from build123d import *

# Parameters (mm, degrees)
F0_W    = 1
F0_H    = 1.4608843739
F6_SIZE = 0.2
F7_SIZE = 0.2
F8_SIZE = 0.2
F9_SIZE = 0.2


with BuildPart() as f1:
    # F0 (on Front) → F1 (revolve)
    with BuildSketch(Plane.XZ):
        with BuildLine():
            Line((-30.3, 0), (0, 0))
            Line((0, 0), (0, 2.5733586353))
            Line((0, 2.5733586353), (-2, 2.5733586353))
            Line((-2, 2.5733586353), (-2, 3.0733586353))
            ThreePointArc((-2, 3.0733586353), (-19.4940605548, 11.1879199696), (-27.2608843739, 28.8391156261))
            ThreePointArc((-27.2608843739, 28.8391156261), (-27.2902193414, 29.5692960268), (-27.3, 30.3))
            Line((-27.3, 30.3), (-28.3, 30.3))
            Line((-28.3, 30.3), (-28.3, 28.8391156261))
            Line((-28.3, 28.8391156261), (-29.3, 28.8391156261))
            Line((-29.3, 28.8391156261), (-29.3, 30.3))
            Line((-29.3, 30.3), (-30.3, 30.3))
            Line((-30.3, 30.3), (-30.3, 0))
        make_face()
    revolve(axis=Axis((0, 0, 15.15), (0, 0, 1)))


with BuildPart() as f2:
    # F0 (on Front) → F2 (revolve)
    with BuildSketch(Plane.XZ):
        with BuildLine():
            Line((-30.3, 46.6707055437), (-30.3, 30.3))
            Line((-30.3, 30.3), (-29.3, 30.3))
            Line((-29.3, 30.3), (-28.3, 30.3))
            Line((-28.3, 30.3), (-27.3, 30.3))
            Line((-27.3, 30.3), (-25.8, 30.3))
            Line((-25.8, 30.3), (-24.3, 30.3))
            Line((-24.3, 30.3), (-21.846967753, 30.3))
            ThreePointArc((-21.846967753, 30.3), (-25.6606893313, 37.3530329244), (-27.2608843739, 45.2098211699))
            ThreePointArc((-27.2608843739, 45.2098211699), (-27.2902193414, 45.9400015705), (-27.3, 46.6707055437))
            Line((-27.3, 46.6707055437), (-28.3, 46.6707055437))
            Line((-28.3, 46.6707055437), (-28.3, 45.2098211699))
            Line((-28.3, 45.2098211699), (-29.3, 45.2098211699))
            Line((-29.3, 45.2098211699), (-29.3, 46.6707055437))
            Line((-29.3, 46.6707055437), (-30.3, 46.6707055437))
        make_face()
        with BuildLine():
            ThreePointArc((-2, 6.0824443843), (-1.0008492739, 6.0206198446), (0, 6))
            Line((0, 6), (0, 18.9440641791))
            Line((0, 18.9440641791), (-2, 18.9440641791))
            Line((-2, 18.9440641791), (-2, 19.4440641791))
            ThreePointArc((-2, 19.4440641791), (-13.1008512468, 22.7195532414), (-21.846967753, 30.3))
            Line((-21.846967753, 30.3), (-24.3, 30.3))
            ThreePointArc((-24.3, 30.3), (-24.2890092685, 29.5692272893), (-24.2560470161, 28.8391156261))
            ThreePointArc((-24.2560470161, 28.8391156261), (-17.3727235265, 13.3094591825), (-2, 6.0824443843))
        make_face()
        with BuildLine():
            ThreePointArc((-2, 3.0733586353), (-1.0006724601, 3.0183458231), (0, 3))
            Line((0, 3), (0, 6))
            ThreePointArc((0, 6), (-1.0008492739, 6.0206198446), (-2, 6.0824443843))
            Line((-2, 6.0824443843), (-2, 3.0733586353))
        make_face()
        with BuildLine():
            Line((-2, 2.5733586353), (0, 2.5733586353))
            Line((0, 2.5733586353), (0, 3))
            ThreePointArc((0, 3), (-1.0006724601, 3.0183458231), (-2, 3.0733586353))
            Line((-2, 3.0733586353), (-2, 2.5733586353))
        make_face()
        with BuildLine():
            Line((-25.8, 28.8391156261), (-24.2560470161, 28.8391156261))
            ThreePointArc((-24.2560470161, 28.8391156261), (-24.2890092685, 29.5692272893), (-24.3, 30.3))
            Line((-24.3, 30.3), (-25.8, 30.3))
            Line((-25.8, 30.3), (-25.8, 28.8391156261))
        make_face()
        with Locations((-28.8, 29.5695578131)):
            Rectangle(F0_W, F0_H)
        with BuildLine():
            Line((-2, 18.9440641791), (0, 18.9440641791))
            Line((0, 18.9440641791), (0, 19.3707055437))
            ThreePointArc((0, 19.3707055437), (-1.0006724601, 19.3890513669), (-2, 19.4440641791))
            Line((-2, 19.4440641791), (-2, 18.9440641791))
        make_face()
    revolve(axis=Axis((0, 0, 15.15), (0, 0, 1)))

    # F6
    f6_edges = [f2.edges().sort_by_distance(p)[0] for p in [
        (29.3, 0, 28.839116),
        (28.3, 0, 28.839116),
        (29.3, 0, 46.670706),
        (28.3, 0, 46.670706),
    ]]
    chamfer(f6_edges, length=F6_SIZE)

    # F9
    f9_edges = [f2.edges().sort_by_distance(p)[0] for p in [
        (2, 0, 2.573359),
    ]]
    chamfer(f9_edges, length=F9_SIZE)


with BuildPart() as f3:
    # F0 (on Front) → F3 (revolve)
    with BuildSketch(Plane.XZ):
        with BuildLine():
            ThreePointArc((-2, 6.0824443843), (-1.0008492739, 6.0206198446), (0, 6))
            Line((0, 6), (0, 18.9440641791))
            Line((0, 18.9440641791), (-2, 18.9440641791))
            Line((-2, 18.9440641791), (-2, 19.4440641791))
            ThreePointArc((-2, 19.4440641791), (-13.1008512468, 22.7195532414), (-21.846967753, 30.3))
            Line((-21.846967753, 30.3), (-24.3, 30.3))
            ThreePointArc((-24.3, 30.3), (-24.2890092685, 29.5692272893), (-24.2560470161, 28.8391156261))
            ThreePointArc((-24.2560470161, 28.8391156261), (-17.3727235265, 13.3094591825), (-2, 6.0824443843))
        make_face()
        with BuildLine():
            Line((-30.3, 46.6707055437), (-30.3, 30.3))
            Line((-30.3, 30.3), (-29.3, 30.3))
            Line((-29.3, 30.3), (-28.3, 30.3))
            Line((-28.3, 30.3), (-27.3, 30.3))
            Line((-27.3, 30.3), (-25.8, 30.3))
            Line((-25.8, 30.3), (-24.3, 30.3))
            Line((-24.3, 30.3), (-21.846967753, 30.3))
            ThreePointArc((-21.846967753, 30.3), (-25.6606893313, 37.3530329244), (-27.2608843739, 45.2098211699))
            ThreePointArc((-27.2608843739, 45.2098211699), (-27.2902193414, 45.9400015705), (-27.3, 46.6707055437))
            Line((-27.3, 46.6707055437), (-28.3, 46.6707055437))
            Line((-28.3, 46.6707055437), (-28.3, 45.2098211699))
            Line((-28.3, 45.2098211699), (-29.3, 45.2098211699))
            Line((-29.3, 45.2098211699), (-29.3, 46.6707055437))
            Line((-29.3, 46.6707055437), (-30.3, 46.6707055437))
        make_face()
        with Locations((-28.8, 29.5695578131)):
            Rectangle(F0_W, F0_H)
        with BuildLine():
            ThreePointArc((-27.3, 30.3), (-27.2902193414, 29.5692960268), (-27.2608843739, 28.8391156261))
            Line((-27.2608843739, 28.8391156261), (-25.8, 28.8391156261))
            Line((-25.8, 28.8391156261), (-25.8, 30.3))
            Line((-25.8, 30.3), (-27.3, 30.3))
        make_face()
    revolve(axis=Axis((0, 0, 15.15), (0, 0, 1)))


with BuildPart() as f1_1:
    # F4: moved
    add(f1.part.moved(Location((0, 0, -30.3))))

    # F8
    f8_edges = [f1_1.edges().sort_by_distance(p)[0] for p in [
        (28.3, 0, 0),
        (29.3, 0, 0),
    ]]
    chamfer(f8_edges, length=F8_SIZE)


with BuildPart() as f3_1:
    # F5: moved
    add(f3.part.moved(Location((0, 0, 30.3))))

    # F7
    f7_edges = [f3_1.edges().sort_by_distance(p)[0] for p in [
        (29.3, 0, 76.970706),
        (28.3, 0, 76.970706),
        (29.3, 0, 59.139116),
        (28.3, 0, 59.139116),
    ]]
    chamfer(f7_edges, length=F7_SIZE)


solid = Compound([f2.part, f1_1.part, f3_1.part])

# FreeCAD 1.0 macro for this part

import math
import FreeCAD as App
import Part
import Sketcher

V = App.Vector
Q = App.Units.Quantity


def edges_at(feature, points):
    """Names of the edges that pass closest to the given points."""
    edges = feature.Shape.Edges
    near = lambda p: min(range(len(edges)), key=lambda i: edges[i].distToShape(Part.Vertex(*p))[0])
    return sorted({f"Edge{near(p) + 1}" for p in points})

doc = App.newDocument("Part")
body = doc.addObject("PartDesign::Body", "Body")

sketch1 = body.newObject("Sketcher::SketchObject", "Sketch")
sketch1.AttachmentSupport = (doc.getObject("XZ_Plane"), [""])
sketch1.MapMode = "FlatFace"
sketch1.addGeometry([
    Part.LineSegment(V(-30.3, 0, 0), V(0, 0, 0)),
    Part.LineSegment(V(0, 0, 0), V(0, 2.6, 0)),
    Part.LineSegment(V(0, 2.6, 0), V(-2, 2.6, 0)),
    Part.LineSegment(V(-2, 2.6, 0), V(-2, 3.1, 0)),
    Part.ArcOfCircle(Part.Circle(V(0, 30.3, 0), V(0, 0, 1), 27.3), math.radians(-177), math.radians(-94)),
    Part.ArcOfCircle(Part.Circle(V(0, 30.3, 0), V(0, 0, 1), 27.3), math.radians(-180), math.radians(-176.93)),
    Part.LineSegment(V(-27.3, 30.3, 0), V(-28.3, 30.3, 0)),
    Part.LineSegment(V(-28.3, 30.3, 0), V(-28.3, 28.8, 0)),
    Part.LineSegment(V(-28.3, 28.8, 0), V(-29.3, 28.8, 0)),
    Part.LineSegment(V(-29.3, 28.8, 0), V(-29.3, 30.3, 0)),
    Part.LineSegment(V(-29.3, 30.3, 0), V(-30.3, 30.3, 0)),
    Part.LineSegment(V(-30.3, 30.3, 0), V(-30.3, 0, 0)),
], False)
sketch1.addConstraint([
    Sketcher.Constraint("Coincident", 0, 2, 1, 1),
    Sketcher.Constraint("Coincident", 1, 2, 2, 1),
    Sketcher.Constraint("Coincident", 2, 2, 3, 1),
    Sketcher.Constraint("Coincident", 3, 2, 4, 2),
    Sketcher.Constraint("Tangent", 4, 1, 5, 2),
    Sketcher.Constraint("Coincident", 5, 1, 6, 1),
    Sketcher.Constraint("Coincident", 6, 2, 7, 1),
    Sketcher.Constraint("Coincident", 7, 2, 8, 1),
    Sketcher.Constraint("Coincident", 8, 2, 9, 1),
    Sketcher.Constraint("Coincident", 9, 2, 10, 1),
    Sketcher.Constraint("Coincident", 10, 2, 11, 1),
    Sketcher.Constraint("Coincident", 11, 2, 0, 1),
    Sketcher.Constraint("Horizontal", 0),
    Sketcher.Constraint("Vertical", 1),
    Sketcher.Constraint("Horizontal", 2),
    Sketcher.Constraint("Vertical", 3),
    Sketcher.Constraint("Horizontal", 6),
    Sketcher.Constraint("Vertical", 7),
    Sketcher.Constraint("Horizontal", 8),
    Sketcher.Constraint("Vertical", 9),
    Sketcher.Constraint("Horizontal", 10),
    Sketcher.Constraint("Vertical", 11),
    Sketcher.Constraint("Coincident", 0, 2, -1, 1),
    Sketcher.Constraint("Equal", 4, 5),
    Sketcher.Constraint("PointOnObject", 4, 3, -2),
    Sketcher.Constraint("Horizontal", 4, 3, 5, 1),
    Sketcher.Constraint("Horizontal", 4, 1, 7, 2),
    Sketcher.Constraint("Horizontal", 6, 2, 9, 2),
    Sketcher.Constraint("Equal", 6, 8),
    Sketcher.Constraint("Equal", 8, 10),
    Sketcher.Constraint("Equal", 0, 11),
    Sketcher.Constraint("Radius", 4, Q("27.3 mm")),
    Sketcher.Constraint("DistanceX", 2, 2, 2, 1, Q("2 mm")),
    Sketcher.Constraint("DistanceX", 6, 2, 6, 1, Q("1 mm")),
    Sketcher.Constraint("DistanceY", 3, 1, 3, 2, Q("0.5 mm")),
    Sketcher.Constraint("DistanceY", 7, 2, 7, 1, Q("1.460884 mm")),
])
revolution = body.newObject("PartDesign::Revolution", "Revolution")
revolution.Profile = sketch1
revolution.ReferenceAxis = (sketch1, ["V_Axis"])
revolution.Angle = 360
body2 = doc.addObject("PartDesign::Body", "Body001")

sketch2 = body2.newObject("Sketcher::SketchObject", "Sketch001")
sketch2.AttachmentSupport = (doc.getObject("XZ_Plane001"), [""])
sketch2.MapMode = "FlatFace"
sketch2.addGeometry([
    Part.LineSegment(V(-30.3, 46.7, 0), V(-30.3, 30.3, 0)),
    Part.LineSegment(V(-30.3, 30.3, 0), V(-29.3, 30.3, 0)),
    Part.LineSegment(V(-29.3, 30.3, 0), V(-29.3, 28.8, 0)),
    Part.LineSegment(V(-29.3, 28.8, 0), V(-28.3, 28.8, 0)),
    Part.LineSegment(V(-28.3, 28.8, 0), V(-28.3, 30.3, 0)),
    Part.LineSegment(V(-28.3, 30.3, 0), V(-25.8, 30.3, 0)),
    Part.LineSegment(V(-25.8, 30.3, 0), V(-25.8, 28.8, 0)),
    Part.LineSegment(V(-25.8, 28.8, 0), V(-24.3, 28.8, 0)),
    Part.ArcOfCircle(Part.Circle(V(0, 30.3, 0), V(0, 0, 1), 24.3), math.radians(-177), math.radians(-95)),
    Part.LineSegment(V(-2, 6.1, 0), V(-2, 2.6, 0)),
    Part.LineSegment(V(-2, 2.6, 0), V(0, 2.6, 0)),
    Part.LineSegment(V(0, 2.6, 0), V(0, 19.4, 0)),
    Part.ArcOfCircle(Part.Circle(V(0, 46.7, 0), V(0, 0, 1), 27.3), math.radians(-94.2), math.radians(-90)),
    Part.ArcOfCircle(Part.Circle(V(0, 46.7, 0), V(0, 0, 1), 27.3), math.radians(-143), math.radians(-94)),
    Part.ArcOfCircle(Part.Circle(V(0, 46.7, 0), V(0, 0, 1), 27.3), math.radians(-177), math.radians(-143)),
    Part.ArcOfCircle(Part.Circle(V(0, 46.7, 0), V(0, 0, 1), 27.3), math.radians(-180), math.radians(-176.93)),
    Part.LineSegment(V(-27.3, 46.7, 0), V(-28.3, 46.7, 0)),
    Part.LineSegment(V(-28.3, 46.7, 0), V(-28.3, 45.2, 0)),
    Part.LineSegment(V(-28.3, 45.2, 0), V(-29.3, 45.2, 0)),
    Part.LineSegment(V(-29.3, 45.2, 0), V(-29.3, 46.7, 0)),
    Part.LineSegment(V(-29.3, 46.7, 0), V(-30.3, 46.7, 0)),
], False)
sketch2.addConstraint([
    Sketcher.Constraint("Coincident", 0, 2, 1, 1),
    Sketcher.Constraint("Coincident", 1, 2, 2, 1),
    Sketcher.Constraint("Coincident", 2, 2, 3, 1),
    Sketcher.Constraint("Coincident", 3, 2, 4, 1),
    Sketcher.Constraint("Coincident", 4, 2, 5, 1),
    Sketcher.Constraint("Coincident", 5, 2, 6, 1),
    Sketcher.Constraint("Coincident", 6, 2, 7, 1),
    Sketcher.Constraint("Coincident", 7, 2, 8, 1),
    Sketcher.Constraint("Coincident", 8, 2, 9, 1),
    Sketcher.Constraint("Coincident", 9, 2, 10, 1),
    Sketcher.Constraint("Coincident", 10, 2, 11, 1),
    Sketcher.Constraint("Coincident", 11, 2, 12, 2),
    Sketcher.Constraint("Tangent", 12, 1, 13, 2),
    Sketcher.Constraint("Tangent", 13, 1, 14, 2),
    Sketcher.Constraint("Tangent", 14, 1, 15, 2),
    Sketcher.Constraint("Coincident", 15, 1, 16, 1),
    Sketcher.Constraint("Coincident", 16, 2, 17, 1),
    Sketcher.Constraint("Coincident", 17, 2, 18, 1),
    Sketcher.Constraint("Coincident", 18, 2, 19, 1),
    Sketcher.Constraint("Coincident", 19, 2, 20, 1),
    Sketcher.Constraint("Coincident", 20, 2, 0, 1),
    Sketcher.Constraint("Vertical", 0),
    Sketcher.Constraint("Horizontal", 1),
    Sketcher.Constraint("Vertical", 2),
    Sketcher.Constraint("Horizontal", 3),
    Sketcher.Constraint("Vertical", 4),
    Sketcher.Constraint("Horizontal", 5),
    Sketcher.Constraint("Vertical", 6),
    Sketcher.Constraint("Horizontal", 7),
    Sketcher.Constraint("Vertical", 9),
    Sketcher.Constraint("Horizontal", 10),
    Sketcher.Constraint("Vertical", 11),
    Sketcher.Constraint("Horizontal", 16),
    Sketcher.Constraint("Vertical", 17),
    Sketcher.Constraint("Horizontal", 18),
    Sketcher.Constraint("Vertical", 19),
    Sketcher.Constraint("Horizontal", 20),
    Sketcher.Constraint("Coincident", 14, 3, 12, 3),
    Sketcher.Constraint("Equal", 14, 15),
    Sketcher.Constraint("PointOnObject", 8, 3, -2),
    Sketcher.Constraint("PointOnObject", 12, 3, -2),
    Sketcher.Constraint("PointOnObject", 10, 2, -2),
    Sketcher.Constraint("Horizontal", 8, 3, 0, 2),
    Sketcher.Constraint("Horizontal", 1, 2, 4, 2),
    Sketcher.Constraint("Horizontal", 3, 2, 6, 2),
    Sketcher.Constraint("Horizontal", 5, 2, 13, 1),
    Sketcher.Constraint("Horizontal", 14, 3, 15, 1),
    Sketcher.Constraint("Horizontal", 14, 1, 17, 2),
    Sketcher.Constraint("Horizontal", 16, 2, 19, 2),
    Sketcher.Constraint("Vertical", 9, 2, 12, 1),
    Sketcher.Constraint("Vertical", 4, 2, 16, 2),
    Sketcher.Constraint("Vertical", 2, 2, 18, 2),
    Sketcher.Constraint("Equal", 1, 3),
    Sketcher.Constraint("Equal", 3, 16),
    Sketcher.Constraint("Equal", 6, 17),
    Sketcher.Constraint("Radius", 8, Q("24.3 mm")),
    Sketcher.Constraint("Radius", 12, Q("27.3 mm")),
    Sketcher.Constraint("DistanceX", 1, 1, 1, 2, Q("1 mm")),
    Sketcher.Constraint("DistanceX", 10, 1, 10, 2, Q("2 mm")),
    Sketcher.Constraint("DistanceX", 5, 1, 5, 2, Q("2.5 mm")),
    Sketcher.Constraint("DistanceY", -1, 1, 8, 3, Q("30.3 mm")),
    Sketcher.Constraint("DistanceX", 7, 1, 7, 2, Q("1.543953 mm")),
    Sketcher.Constraint("DistanceY", 0, 2, 0, 1, Q("16.370706 mm")),
    Sketcher.Constraint("DistanceY", 9, 2, 9, 1, Q("3.509086 mm")),
])
revolution2 = body2.newObject("PartDesign::Revolution", "Revolution001")
revolution2.Profile = sketch2
revolution2.ReferenceAxis = (sketch2, ["V_Axis"])
revolution2.Angle = 360
doc.recompute()

chamfer = body2.newObject("PartDesign::Chamfer", "Chamfer")
chamfer.Base = (revolution2, edges_at(revolution2, [
    (29.3, 0, 28.839),
    (28.3, 0, 28.839),
    (29.3, 0, 46.671),
    (28.3, 0, 46.671),
]))
chamfer.Size = 0.2
doc.recompute()

chamfer2 = body2.newObject("PartDesign::Chamfer", "Chamfer001")
chamfer2.Base = (chamfer, edges_at(chamfer, [(2, 0, 2.573)]))
chamfer2.Size = 0.2
body3 = doc.addObject("PartDesign::Body", "Body002")

sketch3 = body3.newObject("Sketcher::SketchObject", "Sketch002")
sketch3.AttachmentSupport = (doc.getObject("XZ_Plane002"), [""])
sketch3.MapMode = "FlatFace"
sketch3.addGeometry([
    Part.ArcOfCircle(Part.Circle(V(0, 30.3, 0), V(0, 0, 1), 24.3), math.radians(-94.72), math.radians(-90)),
    Part.LineSegment(V(0, 6, 0), V(0, 18.9, 0)),
    Part.LineSegment(V(0, 18.9, 0), V(-2, 18.9, 0)),
    Part.LineSegment(V(-2, 18.9, 0), V(-2, 19.4, 0)),
    Part.ArcOfCircle(Part.Circle(V(0, 46.7, 0), V(0, 0, 1), 27.3), math.radians(-143), math.radians(-94)),
    Part.ArcOfCircle(Part.Circle(V(0, 46.7, 0), V(0, 0, 1), 27.3), math.radians(-177), math.radians(-143)),
    Part.ArcOfCircle(Part.Circle(V(0, 46.7, 0), V(0, 0, 1), 27.3), math.radians(-180), math.radians(-176.93)),
    Part.LineSegment(V(-27.3, 46.7, 0), V(-28.3, 46.7, 0)),
    Part.LineSegment(V(-28.3, 46.7, 0), V(-28.3, 45.2, 0)),
    Part.LineSegment(V(-28.3, 45.2, 0), V(-29.3, 45.2, 0)),
    Part.LineSegment(V(-29.3, 45.2, 0), V(-29.3, 46.7, 0)),
    Part.LineSegment(V(-29.3, 46.7, 0), V(-30.3, 46.7, 0)),
    Part.LineSegment(V(-30.3, 46.7, 0), V(-30.3, 30.3, 0)),
    Part.LineSegment(V(-30.3, 30.3, 0), V(-29.3, 30.3, 0)),
    Part.LineSegment(V(-29.3, 30.3, 0), V(-29.3, 28.8, 0)),
    Part.LineSegment(V(-29.3, 28.8, 0), V(-28.3, 28.8, 0)),
    Part.LineSegment(V(-28.3, 28.8, 0), V(-28.3, 30.3, 0)),
    Part.LineSegment(V(-28.3, 30.3, 0), V(-27.3, 30.3, 0)),
    Part.ArcOfCircle(Part.Circle(V(0, 30.3, 0), V(0, 0, 1), 27.3), math.radians(-180), math.radians(-176.93)),
    Part.LineSegment(V(-27.3, 28.8, 0), V(-25.8, 28.8, 0)),
    Part.LineSegment(V(-25.8, 28.8, 0), V(-25.8, 30.3, 0)),
    Part.LineSegment(V(-25.8, 30.3, 0), V(-24.3, 30.3, 0)),
    Part.ArcOfCircle(Part.Circle(V(0, 30.3, 0), V(0, 0, 1), 24.3), math.radians(180), math.radians(183.45)),
    Part.ArcOfCircle(Part.Circle(V(0, 30.3, 0), V(0, 0, 1), 24.3), math.radians(-177), math.radians(-95)),
], False)
sketch3.addConstraint([
    Sketcher.Constraint("Coincident", 0, 2, 1, 1),
    Sketcher.Constraint("Coincident", 1, 2, 2, 1),
    Sketcher.Constraint("Coincident", 2, 2, 3, 1),
    Sketcher.Constraint("Coincident", 3, 2, 4, 2),
    Sketcher.Constraint("Tangent", 4, 1, 5, 2),
    Sketcher.Constraint("Tangent", 5, 1, 6, 2),
    Sketcher.Constraint("Coincident", 6, 1, 7, 1),
    Sketcher.Constraint("Coincident", 7, 2, 8, 1),
    Sketcher.Constraint("Coincident", 8, 2, 9, 1),
    Sketcher.Constraint("Coincident", 9, 2, 10, 1),
    Sketcher.Constraint("Coincident", 10, 2, 11, 1),
    Sketcher.Constraint("Coincident", 11, 2, 12, 1),
    Sketcher.Constraint("Coincident", 12, 2, 13, 1),
    Sketcher.Constraint("Coincident", 13, 2, 14, 1),
    Sketcher.Constraint("Coincident", 14, 2, 15, 1),
    Sketcher.Constraint("Coincident", 15, 2, 16, 1),
    Sketcher.Constraint("Coincident", 16, 2, 17, 1),
    Sketcher.Constraint("Coincident", 17, 2, 18, 1),
    Sketcher.Constraint("Coincident", 18, 2, 19, 1),
    Sketcher.Constraint("Coincident", 19, 2, 20, 1),
    Sketcher.Constraint("Coincident", 20, 2, 21, 1),
    Sketcher.Constraint("Coincident", 21, 2, 22, 1),
    Sketcher.Constraint("Tangent", 22, 2, 23, 1),
    Sketcher.Constraint("Tangent", 23, 2, 0, 1),
    Sketcher.Constraint("Vertical", 1),
    Sketcher.Constraint("Horizontal", 2),
    Sketcher.Constraint("Vertical", 3),
    Sketcher.Constraint("Horizontal", 7),
    Sketcher.Constraint("Vertical", 8),
    Sketcher.Constraint("Horizontal", 9),
    Sketcher.Constraint("Vertical", 10),
    Sketcher.Constraint("Horizontal", 11),
    Sketcher.Constraint("Vertical", 12),
    Sketcher.Constraint("Horizontal", 13),
    Sketcher.Constraint("Vertical", 14),
    Sketcher.Constraint("Horizontal", 15),
    Sketcher.Constraint("Vertical", 16),
    Sketcher.Constraint("Horizontal", 17),
    Sketcher.Constraint("Horizontal", 19),
    Sketcher.Constraint("Vertical", 20),
    Sketcher.Constraint("Horizontal", 21),
    Sketcher.Constraint("Coincident", 6, 3, 4, 3),
    Sketcher.Constraint("Coincident", 18, 3, 0, 3),
    Sketcher.Constraint("Coincident", 22, 3, 0, 3),
    Sketcher.Constraint("Equal", 6, 18),
    Sketcher.Constraint("PointOnObject", 0, 3, -2),
    Sketcher.Constraint("PointOnObject", 4, 3, -2),
    Sketcher.Constraint("PointOnObject", 0, 2, -2),
    Sketcher.Constraint("Horizontal", 23, 3, 4, 1),
    Sketcher.Constraint("Horizontal", 5, 3, 6, 1),
    Sketcher.Constraint("Horizontal", 5, 1, 8, 2),
    Sketcher.Constraint("Horizontal", 7, 2, 10, 2),
    Sketcher.Constraint("Horizontal", 4, 1, 12, 2),
    Sketcher.Constraint("Horizontal", 13, 2, 16, 2),
    Sketcher.Constraint("Horizontal", 15, 2, 18, 2),
    Sketcher.Constraint("Horizontal", 17, 2, 20, 2),
    Sketcher.Constraint("Horizontal", 19, 2, 22, 2),
    Sketcher.Constraint("Vertical", 10, 2, 13, 2),
    Sketcher.Constraint("Vertical", 8, 2, 15, 2),
    Sketcher.Constraint("Vertical", 5, 1, 18, 2),
    Sketcher.Constraint("Vertical", 3, 2, 23, 2),
    Sketcher.Constraint("Equal", 7, 9),
    Sketcher.Constraint("Equal", 9, 11),
    Sketcher.Constraint("Equal", 19, 8),
    Sketcher.Constraint("Radius", 0, Q("24.3 mm")),
    Sketcher.Constraint("Radius", 4, Q("27.3 mm")),
    Sketcher.Constraint("DistanceX", 2, 2, 2, 1, Q("2 mm")),
    Sketcher.Constraint("DistanceX", 7, 2, 7, 1, Q("1 mm")),
    Sketcher.Constraint("DistanceX", 21, 1, 21, 2, Q("1.5 mm")),
    Sketcher.Constraint("DistanceY", 3, 1, 3, 2, Q("0.5 mm")),
    Sketcher.Constraint("DistanceY", -1, 1, 0, 2, Q("6 mm")),
    Sketcher.Constraint("DistanceY", 1, 1, 1, 2, Q("12.944064 mm")),
])
revolution3 = body3.newObject("PartDesign::Revolution", "Revolution002")
revolution3.Profile = sketch3
revolution3.ReferenceAxis = (sketch3, ["V_Axis"])
revolution3.Angle = 360
body4 = doc.addObject("PartDesign::Body", "Body003")
doc.recompute()

body.Placement = App.Placement(V(0, 0, -30.3), App.Rotation(V(0, 0, 1), 0))
boolean = body4.newObject("PartDesign::Boolean", "Boolean")
boolean.Type = "Fuse"
boolean.addObjects([body])
doc.recompute()

chamfer3 = body4.newObject("PartDesign::Chamfer", "Chamfer002")
chamfer3.Base = (boolean, edges_at(boolean, [(28.3, 0, 0), (29.3, 0, 0)]))
chamfer3.Size = 0.2
body5 = doc.addObject("PartDesign::Body", "Body004")
doc.recompute()

body3.Placement = App.Placement(V(0, 0, 30.3), App.Rotation(V(0, 0, 1), 0))
boolean2 = body5.newObject("PartDesign::Boolean", "Boolean001")
boolean2.Type = "Fuse"
boolean2.addObjects([body3])
doc.recompute()

chamfer4 = body5.newObject("PartDesign::Chamfer", "Chamfer003")
chamfer4.Base = (boolean2, edges_at(boolean2, [
    (29.3, 0, 76.971),
    (28.3, 0, 76.971),
    (29.3, 0, 59.139),
    (28.3, 0, 59.139),
]))
chamfer4.Size = 0.2

doc.recompute()
